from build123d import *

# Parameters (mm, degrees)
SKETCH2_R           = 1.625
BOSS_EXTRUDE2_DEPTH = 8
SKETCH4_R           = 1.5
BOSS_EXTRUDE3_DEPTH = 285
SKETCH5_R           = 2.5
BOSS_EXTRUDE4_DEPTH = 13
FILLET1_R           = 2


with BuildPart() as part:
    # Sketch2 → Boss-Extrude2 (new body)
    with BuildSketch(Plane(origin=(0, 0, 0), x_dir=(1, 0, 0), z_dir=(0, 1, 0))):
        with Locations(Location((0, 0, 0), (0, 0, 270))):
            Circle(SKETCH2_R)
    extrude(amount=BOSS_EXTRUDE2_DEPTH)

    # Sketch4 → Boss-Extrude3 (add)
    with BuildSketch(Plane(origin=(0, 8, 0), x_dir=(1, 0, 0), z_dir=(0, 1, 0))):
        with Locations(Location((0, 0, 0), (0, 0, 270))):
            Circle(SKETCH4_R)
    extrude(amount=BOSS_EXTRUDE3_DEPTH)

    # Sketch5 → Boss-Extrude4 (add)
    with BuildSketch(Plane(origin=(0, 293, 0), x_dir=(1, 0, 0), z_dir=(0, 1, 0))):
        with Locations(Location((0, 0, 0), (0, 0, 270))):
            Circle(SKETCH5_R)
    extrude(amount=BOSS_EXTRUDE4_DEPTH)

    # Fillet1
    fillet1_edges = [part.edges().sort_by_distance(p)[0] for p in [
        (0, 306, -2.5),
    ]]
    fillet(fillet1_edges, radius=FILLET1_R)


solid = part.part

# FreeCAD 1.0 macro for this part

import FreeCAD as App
import Part
import Sketcher
from FreeCAD import Vector
Q = App.Units.Quantity


def edges_at(feature, points):
    """Names of the edges that pass closest to the given points."""
    edges = feature.Shape.Edges
    near = lambda p: min(range(len(edges)), key=lambda i: edges[i].distToShape(Part.Vertex(*p))[0])
    return sorted({f"Edge{near(p) + 1}" for p in points})

doc = App.newDocument("Part")
params = doc.addObject("Spreadsheet::Sheet", "Params")
for row, (alias, value) in enumerate([
    ("sketch1_diameter", "3.25 mm"),
    ("pad1_length", "8 mm"),
    ("sketch2_diameter", "3 mm"),
    ("pad2_length", "285 mm"),
    ("sketch3_diameter", "5 mm"),
    ("pad3_length", "13 mm"),
    ("fillet_radius", "2 mm"),
], start=1):
    params.set(f"A{row}", alias)
    params.set(f"B{row}", "=" + value)
    params.setAlias(f"B{row}", alias)

body = doc.addObject("PartDesign::Body", "Body")

# Sketch on XZ plane
sketch1 = body.newObject("Sketcher::SketchObject", "Sketch")
sketch1.AttachmentSupport = (doc.getObject("XZ_Plane"), [""])
sketch1.MapMode = "FlatFace"
sketch1.addGeometry(Part.Circle(Vector(0, 0, 0), Vector(0, 0, 1), 1.6), False)
sketch1.addConstraint(Sketcher.Constraint("Coincident", 0, 3, -1, 1))
sketch1.addConstraint(Sketcher.Constraint("Diameter", 0, Q("3.25 mm")))
sketch1.setExpression("Constraints[1]", "Params.sketch1_diameter")
pad1 = body.newObject("PartDesign::Pad", "Pad")
pad1.Profile = sketch1
pad1.setExpression("Length", "Params.pad1_length")
pad1.Reversed = True

# Sketch on XZ plane
sketch2 = body.newObject("Sketcher::SketchObject", "Sketch001")
sketch2.AttachmentSupport = (doc.getObject("XZ_Plane"), [""])
sketch2.MapMode = "FlatFace"
sketch2.AttachmentOffset = App.Placement(Vector(0, 0, -8), App.Rotation())
sketch2.addGeometry(Part.Circle(Vector(0, 0, 0), Vector(0, 0, 1), 1.5), False)
sketch2.addConstraint(Sketcher.Constraint("Coincident", 0, 3, -1, 1))
sketch2.addConstraint(Sketcher.Constraint("Diameter", 0, Q("3 mm")))
sketch2.setExpression("Constraints[1]", "Params.sketch2_diameter")
pad2 = body.newObject("PartDesign::Pad", "Pad001")
pad2.Profile = sketch2
pad2.setExpression("Length", "Params.pad2_length")
pad2.Reversed = True

# Sketch on XZ plane
sketch3 = body.newObject("Sketcher::SketchObject", "Sketch002")
sketch3.AttachmentSupport = (doc.getObject("XZ_Plane"), [""])
sketch3.MapMode = "FlatFace"
sketch3.AttachmentOffset = App.Placement(Vector(0, 0, -293), App.Rotation())
sketch3.addGeometry(Part.Circle(Vector(0, 0, 0), Vector(0, 0, 1), 2.5), False)
sketch3.addConstraint(Sketcher.Constraint("Coincident", 0, 3, -1, 1))
sketch3.addConstraint(Sketcher.Constraint("Diameter", 0, Q("5 mm")))
sketch3.setExpression("Constraints[1]", "Params.sketch3_diameter")
pad3 = body.newObject("PartDesign::Pad", "Pad002")
pad3.Profile = sketch3
pad3.setExpression("Length", "Params.pad3_length")
pad3.Reversed = True
doc.recompute()

fillet = body.newObject("PartDesign::Fillet", "Fillet")
fillet.Base = (pad3, edges_at(pad3, [(0, 306, -2.5)]))
fillet.setExpression("Radius", "Params.fillet_radius")

doc.recompute()
